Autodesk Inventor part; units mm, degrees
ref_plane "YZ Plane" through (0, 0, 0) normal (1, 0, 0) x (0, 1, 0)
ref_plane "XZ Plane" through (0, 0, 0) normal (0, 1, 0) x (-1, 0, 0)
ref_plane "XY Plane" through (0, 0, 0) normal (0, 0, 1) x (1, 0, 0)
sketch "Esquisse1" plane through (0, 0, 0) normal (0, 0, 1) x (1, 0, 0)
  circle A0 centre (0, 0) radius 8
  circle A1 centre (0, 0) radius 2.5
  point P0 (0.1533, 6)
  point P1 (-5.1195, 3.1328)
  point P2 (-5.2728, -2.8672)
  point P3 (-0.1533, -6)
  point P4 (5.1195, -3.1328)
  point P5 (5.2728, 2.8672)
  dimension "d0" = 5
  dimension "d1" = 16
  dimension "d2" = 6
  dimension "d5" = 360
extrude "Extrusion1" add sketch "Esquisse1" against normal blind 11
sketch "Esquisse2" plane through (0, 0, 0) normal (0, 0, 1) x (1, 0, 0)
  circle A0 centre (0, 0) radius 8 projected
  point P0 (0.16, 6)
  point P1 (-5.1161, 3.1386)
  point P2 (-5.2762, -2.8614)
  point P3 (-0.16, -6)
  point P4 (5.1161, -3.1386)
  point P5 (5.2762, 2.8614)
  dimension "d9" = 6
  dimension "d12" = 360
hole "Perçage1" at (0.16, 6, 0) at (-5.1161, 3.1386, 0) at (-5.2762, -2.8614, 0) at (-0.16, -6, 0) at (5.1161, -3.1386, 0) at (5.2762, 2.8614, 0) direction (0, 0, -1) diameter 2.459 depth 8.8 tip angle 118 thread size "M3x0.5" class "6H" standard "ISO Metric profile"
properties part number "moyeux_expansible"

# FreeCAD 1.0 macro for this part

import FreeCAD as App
import Part
import Sketcher

V = App.Vector
Q = App.Units.Quantity

doc = App.newDocument("Part")
body = doc.addObject("PartDesign::Body", "Body")

sketch1 = body.newObject("Sketcher::SketchObject", "Sketch")
sketch1.AttachmentSupport = (doc.getObject("XY_Plane"), [""])
sketch1.MapMode = "FlatFace"
sketch1.addGeometry([
    Part.Circle(V(0, 0, 0), V(0, 0, 1), 8),
    Part.Circle(V(0, 0, 0), V(0, 0, 1), 2.5),
], False)
sketch1.addConstraint([
    Sketcher.Constraint("Coincident", 0, 3, -1, 1),
    Sketcher.Constraint("Coincident", 1, 3, -1, 1),
    Sketcher.Constraint("Diameter", 0, Q("16 mm")),
    Sketcher.Constraint("Diameter", 1, Q("5 mm")),
])
pad1 = body.newObject("PartDesign::Pad", "Pad")
pad1.Profile = sketch1
pad1.Length = 11
pad1.Reversed = True

sketch2 = body.newObject("Sketcher::SketchObject", "Sketch001")
sketch2.AttachmentSupport = (doc.getObject("XY_Plane"), [""])
sketch2.MapMode = "FlatFace"
sketch2.addGeometry([
    Part.Circle(V(0.2, 6, 0), V(0, 0, 1), 1.2),
    Part.Circle(V(-5.1, 3.1, 0), V(0, 0, 1), 1.2),
    Part.Circle(V(-5.3, -2.9, 0), V(0, 0, 1), 1.2),
    Part.Circle(V(-0.2, -6, 0), V(0, 0, 1), 1.2),
    Part.Circle(V(5.1, -3.1, 0), V(0, 0, 1), 1.2),
    Part.Circle(V(5.3, 2.9, 0), V(0, 0, 1), 1.2),
], False)
sketch2.addConstraint([
    Sketcher.Constraint("Equal", 0, 1),
    Sketcher.Constraint("Equal", 1, 2),
    Sketcher.Constraint("Equal", 2, 3),
    Sketcher.Constraint("Equal", 3, 4),
    Sketcher.Constraint("Equal", 4, 5),
    Sketcher.Constraint("Symmetric", 0, 3, 3, 3, -1, 1),
    Sketcher.Constraint("Symmetric", 1, 3, 4, 3, -1, 1),
    Sketcher.Constraint("Symmetric", 2, 3, 5, 3, -1, 1),
    Sketcher.Constraint("Diameter", 0, Q("2.459 mm")),
    Sketcher.Constraint("DistanceY", -1, 1, 0, 3, Q("6 mm")),
    Sketcher.Constraint("DistanceY", 2, 3, 1, 3, Q("6 mm")),
    Sketcher.Constraint("DistanceX", -1, 1, 0, 3, Q("0.16 mm")),
    Sketcher.Constraint("DistanceX", 2, 3, 1, 3, Q("0.16 mm")),
    Sketcher.Constraint("DistanceX", 1, 3, -1, 1, Q("5.116 mm")),
    Sketcher.Constraint("DistanceY", -1, 1, 1, 3, Q("3.1386 mm")),
])
doc.recompute()
hole = body.newObject("PartDesign::Hole", "Hole")
hole.Profile = sketch2
hole.ThreadType = "None"
hole.Diameter = 2.459
hole.DepthType = "Dimension"
hole.Depth = 8.8
hole.DrillPoint = "Angled"
hole.DrillPointAngle = 118

doc.recompute()
